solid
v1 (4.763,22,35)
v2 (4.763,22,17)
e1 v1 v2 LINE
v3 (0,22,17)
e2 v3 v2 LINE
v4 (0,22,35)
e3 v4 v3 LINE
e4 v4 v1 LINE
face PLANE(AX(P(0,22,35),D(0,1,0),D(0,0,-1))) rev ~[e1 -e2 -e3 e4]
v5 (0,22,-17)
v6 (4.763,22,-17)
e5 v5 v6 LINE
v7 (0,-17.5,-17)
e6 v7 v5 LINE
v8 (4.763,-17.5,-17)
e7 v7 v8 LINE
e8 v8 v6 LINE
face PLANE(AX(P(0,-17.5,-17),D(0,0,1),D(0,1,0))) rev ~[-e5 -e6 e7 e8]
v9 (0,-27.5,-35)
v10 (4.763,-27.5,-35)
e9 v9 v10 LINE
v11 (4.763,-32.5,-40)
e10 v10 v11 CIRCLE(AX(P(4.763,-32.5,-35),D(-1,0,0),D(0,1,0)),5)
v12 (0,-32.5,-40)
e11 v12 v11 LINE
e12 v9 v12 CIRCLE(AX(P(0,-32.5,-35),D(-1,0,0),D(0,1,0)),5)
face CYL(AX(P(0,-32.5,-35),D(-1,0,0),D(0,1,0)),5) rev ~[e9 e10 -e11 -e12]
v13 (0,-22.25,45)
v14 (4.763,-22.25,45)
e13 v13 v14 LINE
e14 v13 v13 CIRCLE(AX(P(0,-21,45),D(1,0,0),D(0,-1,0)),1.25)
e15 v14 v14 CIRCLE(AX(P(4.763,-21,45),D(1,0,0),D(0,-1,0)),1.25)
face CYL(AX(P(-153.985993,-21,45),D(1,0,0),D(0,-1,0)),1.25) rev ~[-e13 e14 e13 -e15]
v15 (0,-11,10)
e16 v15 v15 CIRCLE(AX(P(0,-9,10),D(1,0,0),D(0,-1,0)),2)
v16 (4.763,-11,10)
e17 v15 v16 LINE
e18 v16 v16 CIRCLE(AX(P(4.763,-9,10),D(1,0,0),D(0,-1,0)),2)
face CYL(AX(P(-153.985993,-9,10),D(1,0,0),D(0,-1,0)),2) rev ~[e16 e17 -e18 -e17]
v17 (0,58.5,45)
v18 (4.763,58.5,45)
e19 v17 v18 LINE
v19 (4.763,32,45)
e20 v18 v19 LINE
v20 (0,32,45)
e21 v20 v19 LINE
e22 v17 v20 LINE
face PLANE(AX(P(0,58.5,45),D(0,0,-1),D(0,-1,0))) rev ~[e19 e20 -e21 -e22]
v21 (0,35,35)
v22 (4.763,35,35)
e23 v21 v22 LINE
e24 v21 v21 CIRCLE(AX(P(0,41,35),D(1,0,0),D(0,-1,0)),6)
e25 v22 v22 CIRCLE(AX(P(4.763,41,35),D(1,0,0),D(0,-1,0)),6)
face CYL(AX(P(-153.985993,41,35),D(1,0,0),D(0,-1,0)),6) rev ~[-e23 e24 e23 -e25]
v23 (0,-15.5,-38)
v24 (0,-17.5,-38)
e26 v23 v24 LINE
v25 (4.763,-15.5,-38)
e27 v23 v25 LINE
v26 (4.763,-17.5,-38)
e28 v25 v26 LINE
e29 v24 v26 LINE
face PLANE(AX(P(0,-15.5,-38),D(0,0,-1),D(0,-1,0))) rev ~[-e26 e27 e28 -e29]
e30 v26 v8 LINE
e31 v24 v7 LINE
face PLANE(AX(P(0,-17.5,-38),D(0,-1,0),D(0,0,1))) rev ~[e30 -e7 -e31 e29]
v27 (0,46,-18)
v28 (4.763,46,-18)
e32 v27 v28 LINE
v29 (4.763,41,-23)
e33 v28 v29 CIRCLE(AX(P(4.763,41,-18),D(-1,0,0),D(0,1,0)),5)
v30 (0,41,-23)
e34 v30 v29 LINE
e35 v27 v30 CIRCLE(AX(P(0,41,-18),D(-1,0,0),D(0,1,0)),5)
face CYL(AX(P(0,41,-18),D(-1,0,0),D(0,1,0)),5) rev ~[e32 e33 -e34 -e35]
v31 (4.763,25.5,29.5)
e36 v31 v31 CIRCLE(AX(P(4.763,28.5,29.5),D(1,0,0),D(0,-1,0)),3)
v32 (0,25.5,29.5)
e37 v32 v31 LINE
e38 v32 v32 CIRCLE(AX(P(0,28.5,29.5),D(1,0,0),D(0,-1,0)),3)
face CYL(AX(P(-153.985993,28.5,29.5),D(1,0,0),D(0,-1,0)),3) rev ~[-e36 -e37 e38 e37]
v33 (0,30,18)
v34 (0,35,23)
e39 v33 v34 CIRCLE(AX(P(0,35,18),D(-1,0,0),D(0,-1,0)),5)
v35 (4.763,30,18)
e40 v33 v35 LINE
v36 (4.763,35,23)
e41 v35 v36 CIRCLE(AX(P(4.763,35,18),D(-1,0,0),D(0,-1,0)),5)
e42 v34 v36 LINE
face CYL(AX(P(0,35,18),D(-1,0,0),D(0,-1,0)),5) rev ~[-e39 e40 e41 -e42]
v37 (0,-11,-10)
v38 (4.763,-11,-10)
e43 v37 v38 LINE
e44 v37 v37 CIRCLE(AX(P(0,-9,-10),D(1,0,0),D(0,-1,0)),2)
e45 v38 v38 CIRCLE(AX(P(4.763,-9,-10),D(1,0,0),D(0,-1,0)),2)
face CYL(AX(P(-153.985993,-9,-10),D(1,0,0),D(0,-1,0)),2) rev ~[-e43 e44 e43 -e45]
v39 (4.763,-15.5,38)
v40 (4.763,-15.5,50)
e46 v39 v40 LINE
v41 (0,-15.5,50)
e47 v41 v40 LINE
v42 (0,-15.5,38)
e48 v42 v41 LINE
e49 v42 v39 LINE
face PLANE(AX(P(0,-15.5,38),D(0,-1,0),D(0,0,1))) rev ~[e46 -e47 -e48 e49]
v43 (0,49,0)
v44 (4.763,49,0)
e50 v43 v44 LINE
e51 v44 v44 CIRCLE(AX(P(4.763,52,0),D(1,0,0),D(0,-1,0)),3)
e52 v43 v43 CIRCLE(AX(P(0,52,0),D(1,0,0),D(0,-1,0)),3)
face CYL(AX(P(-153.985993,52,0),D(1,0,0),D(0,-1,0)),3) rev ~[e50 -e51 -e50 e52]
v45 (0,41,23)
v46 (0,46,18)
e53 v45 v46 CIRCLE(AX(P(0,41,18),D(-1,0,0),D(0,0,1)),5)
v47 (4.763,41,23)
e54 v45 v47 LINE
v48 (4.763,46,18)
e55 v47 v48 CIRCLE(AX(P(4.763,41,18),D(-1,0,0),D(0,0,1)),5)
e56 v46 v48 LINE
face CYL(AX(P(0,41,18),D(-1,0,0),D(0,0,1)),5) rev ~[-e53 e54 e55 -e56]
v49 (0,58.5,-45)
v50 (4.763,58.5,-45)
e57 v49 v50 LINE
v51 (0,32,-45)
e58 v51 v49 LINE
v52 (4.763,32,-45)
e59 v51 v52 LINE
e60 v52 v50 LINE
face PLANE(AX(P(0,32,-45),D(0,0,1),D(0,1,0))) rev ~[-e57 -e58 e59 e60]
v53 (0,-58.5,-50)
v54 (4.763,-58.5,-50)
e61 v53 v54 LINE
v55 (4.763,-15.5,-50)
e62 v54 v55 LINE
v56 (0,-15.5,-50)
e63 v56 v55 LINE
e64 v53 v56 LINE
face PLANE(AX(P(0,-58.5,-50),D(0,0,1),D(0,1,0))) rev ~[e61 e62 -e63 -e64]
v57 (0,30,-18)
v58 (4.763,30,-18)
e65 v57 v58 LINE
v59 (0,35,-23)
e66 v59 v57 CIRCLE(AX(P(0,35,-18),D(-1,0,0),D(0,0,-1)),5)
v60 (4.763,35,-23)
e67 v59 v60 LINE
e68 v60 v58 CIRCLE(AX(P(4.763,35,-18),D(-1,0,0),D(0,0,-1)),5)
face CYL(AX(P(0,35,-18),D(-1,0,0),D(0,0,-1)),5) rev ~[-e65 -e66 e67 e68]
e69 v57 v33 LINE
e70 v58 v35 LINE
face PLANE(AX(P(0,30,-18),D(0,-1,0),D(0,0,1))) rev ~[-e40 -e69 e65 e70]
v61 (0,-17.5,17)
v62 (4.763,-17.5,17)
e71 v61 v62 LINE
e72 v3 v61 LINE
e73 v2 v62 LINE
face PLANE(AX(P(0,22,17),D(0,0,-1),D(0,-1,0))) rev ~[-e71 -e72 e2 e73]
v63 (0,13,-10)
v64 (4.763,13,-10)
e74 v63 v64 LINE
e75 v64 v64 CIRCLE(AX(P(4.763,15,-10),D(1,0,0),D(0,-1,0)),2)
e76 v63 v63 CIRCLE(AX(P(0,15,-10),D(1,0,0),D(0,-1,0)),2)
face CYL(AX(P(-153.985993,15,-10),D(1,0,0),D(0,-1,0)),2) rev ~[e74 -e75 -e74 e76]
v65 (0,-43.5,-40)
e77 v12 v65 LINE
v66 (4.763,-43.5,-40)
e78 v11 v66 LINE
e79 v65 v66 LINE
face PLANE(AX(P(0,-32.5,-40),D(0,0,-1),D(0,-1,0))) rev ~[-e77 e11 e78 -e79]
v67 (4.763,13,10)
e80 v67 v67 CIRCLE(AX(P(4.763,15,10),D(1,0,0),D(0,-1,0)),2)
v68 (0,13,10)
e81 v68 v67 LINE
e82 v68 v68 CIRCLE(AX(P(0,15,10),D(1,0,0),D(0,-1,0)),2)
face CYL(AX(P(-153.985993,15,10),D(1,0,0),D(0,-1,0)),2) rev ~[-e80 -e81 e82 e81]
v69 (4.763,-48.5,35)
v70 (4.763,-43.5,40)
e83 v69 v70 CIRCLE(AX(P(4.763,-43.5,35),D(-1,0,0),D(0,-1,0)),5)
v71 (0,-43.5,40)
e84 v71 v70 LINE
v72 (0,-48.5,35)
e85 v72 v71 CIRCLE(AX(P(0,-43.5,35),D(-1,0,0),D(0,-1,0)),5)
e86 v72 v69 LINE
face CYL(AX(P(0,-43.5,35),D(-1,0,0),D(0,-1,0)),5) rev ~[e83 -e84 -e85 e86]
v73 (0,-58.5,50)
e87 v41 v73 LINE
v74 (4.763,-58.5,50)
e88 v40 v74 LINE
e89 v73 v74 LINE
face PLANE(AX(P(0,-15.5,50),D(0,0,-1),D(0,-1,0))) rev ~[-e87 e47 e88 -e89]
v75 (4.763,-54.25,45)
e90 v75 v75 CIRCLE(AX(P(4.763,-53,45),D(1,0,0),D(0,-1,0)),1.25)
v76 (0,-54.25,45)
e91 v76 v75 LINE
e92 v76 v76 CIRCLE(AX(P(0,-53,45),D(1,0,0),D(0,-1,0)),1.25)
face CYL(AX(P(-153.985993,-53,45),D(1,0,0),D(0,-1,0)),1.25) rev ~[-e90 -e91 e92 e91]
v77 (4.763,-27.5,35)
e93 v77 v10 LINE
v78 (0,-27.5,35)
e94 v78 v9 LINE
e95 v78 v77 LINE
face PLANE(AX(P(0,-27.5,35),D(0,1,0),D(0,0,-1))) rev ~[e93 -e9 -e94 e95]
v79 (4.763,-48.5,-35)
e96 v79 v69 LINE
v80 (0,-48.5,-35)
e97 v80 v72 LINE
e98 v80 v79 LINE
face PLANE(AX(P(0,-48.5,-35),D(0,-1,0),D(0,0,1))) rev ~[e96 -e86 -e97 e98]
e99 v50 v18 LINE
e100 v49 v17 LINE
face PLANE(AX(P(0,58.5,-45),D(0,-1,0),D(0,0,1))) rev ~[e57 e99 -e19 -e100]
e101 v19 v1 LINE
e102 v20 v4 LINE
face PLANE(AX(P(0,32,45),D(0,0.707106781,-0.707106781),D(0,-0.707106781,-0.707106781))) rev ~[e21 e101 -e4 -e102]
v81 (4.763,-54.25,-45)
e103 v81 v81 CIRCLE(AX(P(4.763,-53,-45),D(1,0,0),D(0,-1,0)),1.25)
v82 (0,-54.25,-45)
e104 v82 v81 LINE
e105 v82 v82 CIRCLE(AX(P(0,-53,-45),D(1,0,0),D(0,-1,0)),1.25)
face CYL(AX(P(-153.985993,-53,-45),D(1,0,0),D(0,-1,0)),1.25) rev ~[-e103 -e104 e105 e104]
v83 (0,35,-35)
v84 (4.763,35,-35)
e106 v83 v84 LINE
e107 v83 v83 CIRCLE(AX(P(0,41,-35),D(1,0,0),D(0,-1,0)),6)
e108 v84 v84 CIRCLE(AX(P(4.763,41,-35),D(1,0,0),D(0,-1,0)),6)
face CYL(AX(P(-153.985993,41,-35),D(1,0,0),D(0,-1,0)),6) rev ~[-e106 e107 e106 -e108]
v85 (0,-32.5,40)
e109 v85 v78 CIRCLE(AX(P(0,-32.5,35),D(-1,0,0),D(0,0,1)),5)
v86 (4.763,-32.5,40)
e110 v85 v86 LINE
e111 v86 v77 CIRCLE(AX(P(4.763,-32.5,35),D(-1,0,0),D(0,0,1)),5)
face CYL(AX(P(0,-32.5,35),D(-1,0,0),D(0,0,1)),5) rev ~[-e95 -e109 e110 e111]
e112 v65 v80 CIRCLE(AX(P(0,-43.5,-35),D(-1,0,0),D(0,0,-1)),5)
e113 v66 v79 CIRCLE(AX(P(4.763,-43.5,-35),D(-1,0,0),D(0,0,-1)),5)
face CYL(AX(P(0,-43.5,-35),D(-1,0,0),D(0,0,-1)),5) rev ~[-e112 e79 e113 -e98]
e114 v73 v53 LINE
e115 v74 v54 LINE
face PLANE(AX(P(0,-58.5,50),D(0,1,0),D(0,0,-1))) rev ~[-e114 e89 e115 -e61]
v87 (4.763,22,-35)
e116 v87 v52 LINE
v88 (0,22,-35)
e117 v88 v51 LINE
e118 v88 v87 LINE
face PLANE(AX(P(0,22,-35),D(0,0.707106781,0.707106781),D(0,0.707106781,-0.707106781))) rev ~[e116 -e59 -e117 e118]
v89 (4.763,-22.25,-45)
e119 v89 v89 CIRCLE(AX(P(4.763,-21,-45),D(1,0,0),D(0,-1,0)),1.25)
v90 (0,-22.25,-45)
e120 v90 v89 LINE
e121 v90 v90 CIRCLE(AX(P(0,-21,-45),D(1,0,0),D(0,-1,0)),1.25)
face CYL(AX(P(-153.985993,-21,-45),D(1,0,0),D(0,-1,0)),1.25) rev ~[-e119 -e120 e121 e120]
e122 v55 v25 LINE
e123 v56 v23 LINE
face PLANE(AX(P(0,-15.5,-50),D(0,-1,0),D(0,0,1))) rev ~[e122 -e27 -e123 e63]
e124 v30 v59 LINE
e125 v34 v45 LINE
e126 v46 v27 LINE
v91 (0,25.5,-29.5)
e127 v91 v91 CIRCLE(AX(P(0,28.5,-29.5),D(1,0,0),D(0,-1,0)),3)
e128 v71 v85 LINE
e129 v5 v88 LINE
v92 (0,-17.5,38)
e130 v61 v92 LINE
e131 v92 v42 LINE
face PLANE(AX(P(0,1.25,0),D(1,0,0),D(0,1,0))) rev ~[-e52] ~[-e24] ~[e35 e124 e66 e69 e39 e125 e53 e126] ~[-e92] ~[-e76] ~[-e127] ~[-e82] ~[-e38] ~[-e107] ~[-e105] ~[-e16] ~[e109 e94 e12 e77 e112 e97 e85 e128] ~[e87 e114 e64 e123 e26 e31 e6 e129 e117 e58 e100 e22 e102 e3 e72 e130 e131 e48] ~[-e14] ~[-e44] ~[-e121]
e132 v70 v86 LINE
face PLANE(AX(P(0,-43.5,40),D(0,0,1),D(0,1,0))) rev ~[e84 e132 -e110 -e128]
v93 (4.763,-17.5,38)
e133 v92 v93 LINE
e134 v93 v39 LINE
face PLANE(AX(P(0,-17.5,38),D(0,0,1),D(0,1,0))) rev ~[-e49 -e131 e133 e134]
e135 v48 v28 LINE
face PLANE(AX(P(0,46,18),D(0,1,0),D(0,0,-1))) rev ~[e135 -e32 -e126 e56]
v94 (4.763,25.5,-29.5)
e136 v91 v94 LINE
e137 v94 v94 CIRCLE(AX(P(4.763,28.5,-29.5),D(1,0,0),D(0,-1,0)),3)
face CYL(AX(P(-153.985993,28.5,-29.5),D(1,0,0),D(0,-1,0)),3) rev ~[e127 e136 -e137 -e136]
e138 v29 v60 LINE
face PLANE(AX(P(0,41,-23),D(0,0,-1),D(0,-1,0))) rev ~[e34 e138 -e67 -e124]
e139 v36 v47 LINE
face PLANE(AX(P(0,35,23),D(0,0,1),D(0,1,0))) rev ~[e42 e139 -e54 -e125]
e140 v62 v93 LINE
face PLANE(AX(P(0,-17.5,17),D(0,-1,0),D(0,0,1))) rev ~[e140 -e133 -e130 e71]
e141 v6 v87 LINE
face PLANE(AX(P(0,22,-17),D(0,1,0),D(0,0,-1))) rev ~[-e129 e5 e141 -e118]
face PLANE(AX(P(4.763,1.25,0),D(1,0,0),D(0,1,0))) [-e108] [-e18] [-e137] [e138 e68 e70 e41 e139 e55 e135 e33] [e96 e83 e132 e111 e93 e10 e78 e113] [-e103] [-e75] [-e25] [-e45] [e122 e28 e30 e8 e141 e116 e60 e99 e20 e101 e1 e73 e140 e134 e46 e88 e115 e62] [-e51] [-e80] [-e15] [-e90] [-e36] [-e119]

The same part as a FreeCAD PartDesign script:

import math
import FreeCAD as App
import Part
import Sketcher
from FreeCAD import Vector
Q = App.Units.Quantity

doc = App.newDocument("Part")
body = doc.addObject("PartDesign::Body", "Body")

sketch1 = body.newObject("Sketcher::SketchObject", "Sketch")
sketch1.AttachmentSupport = (doc.getObject("YZ_Plane"), [""])
sketch1.MapMode = "FlatFace"
sketch1.addGeometry([
    Part.LineSegment(Vector(22, 17, 0), Vector(-17.5, 17, 0)),
    Part.LineSegment(Vector(-17.5, 17, 0), Vector(-17.5, 38, 0)),
    Part.LineSegment(Vector(-17.5, 38, 0), Vector(-15.5, 38, 0)),
    Part.LineSegment(Vector(-15.5, 38, 0), Vector(-15.5, 50, 0)),
    Part.LineSegment(Vector(-15.5, 50, 0), Vector(-58.5, 50, 0)),
    Part.LineSegment(Vector(-58.5, 50, 0), Vector(-58.5, -50, 0)),
    Part.LineSegment(Vector(-58.5, -50, 0), Vector(-15.5, -50, 0)),
    Part.LineSegment(Vector(-15.5, -50, 0), Vector(-15.5, -38, 0)),
    Part.LineSegment(Vector(-15.5, -38, 0), Vector(-17.5, -38, 0)),
    Part.LineSegment(Vector(-17.5, -38, 0), Vector(-17.5, -17, 0)),
    Part.LineSegment(Vector(-17.5, -17, 0), Vector(22, -17, 0)),
    Part.LineSegment(Vector(22, -17, 0), Vector(22, -35, 0)),
    Part.LineSegment(Vector(22, -35, 0), Vector(32, -45, 0)),
    Part.LineSegment(Vector(32, -45, 0), Vector(58.5, -45, 0)),
    Part.LineSegment(Vector(58.5, -45, 0), Vector(58.5, 45, 0)),
    Part.LineSegment(Vector(58.5, 45, 0), Vector(32, 45, 0)),
    Part.LineSegment(Vector(32, 45, 0), Vector(22, 35, 0)),
    Part.LineSegment(Vector(22, 35, 0), Vector(22, 17, 0)),
    Part.ArcOfCircle(Part.Circle(Vector(-43.5, 35, 0), Vector(0, 0, 1), 5), math.radians(90), math.radians(180)),
    Part.LineSegment(Vector(-43.5, 40, 0), Vector(-32.5, 40, 0)),
    Part.ArcOfCircle(Part.Circle(Vector(-32.5, 35, 0), Vector(0, 0, 1), 5), math.radians(0), math.radians(90)),
    Part.LineSegment(Vector(-27.5, 35, 0), Vector(-27.5, -35, 0)),
    Part.ArcOfCircle(Part.Circle(Vector(-32.5, -35, 0), Vector(0, 0, 1), 5), math.radians(-90), math.radians(0)),
    Part.LineSegment(Vector(-32.5, -40, 0), Vector(-43.5, -40, 0)),
    Part.ArcOfCircle(Part.Circle(Vector(-43.5, -35, 0), Vector(0, 0, 1), 5), math.radians(180), math.radians(270)),
    Part.LineSegment(Vector(-48.5, -35, 0), Vector(-48.5, 35, 0)),
    Part.ArcOfCircle(Part.Circle(Vector(35, 18, 0), Vector(0, 0, 1), 5), math.radians(90), math.radians(180)),
    Part.LineSegment(Vector(35, 23, 0), Vector(41, 23, 0)),
    Part.ArcOfCircle(Part.Circle(Vector(41, 18, 0), Vector(0, 0, 1), 5), math.radians(0), math.radians(90)),
    Part.LineSegment(Vector(46, 18, 0), Vector(46, -18, 0)),
    Part.ArcOfCircle(Part.Circle(Vector(41, -18, 0), Vector(0, 0, 1), 5), math.radians(-90), math.radians(0)),
    Part.LineSegment(Vector(41, -23, 0), Vector(35, -23, 0)),
    Part.ArcOfCircle(Part.Circle(Vector(35, -18, 0), Vector(0, 0, 1), 5), math.radians(180), math.radians(270)),
    Part.LineSegment(Vector(30, -18, 0), Vector(30, 18, 0)),
], False)
sketch1.addConstraint([
    Sketcher.Constraint("Coincident", 0, 2, 1, 1),
    Sketcher.Constraint("Coincident", 1, 2, 2, 1),
    Sketcher.Constraint("Coincident", 2, 2, 3, 1),
    Sketcher.Constraint("Coincident", 3, 2, 4, 1),
    Sketcher.Constraint("Coincident", 4, 2, 5, 1),
    Sketcher.Constraint("Coincident", 5, 2, 6, 1),
    Sketcher.Constraint("Coincident", 6, 2, 7, 1),
    Sketcher.Constraint("Coincident", 7, 2, 8, 1),
    Sketcher.Constraint("Coincident", 8, 2, 9, 1),
    Sketcher.Constraint("Coincident", 9, 2, 10, 1),
    Sketcher.Constraint("Coincident", 10, 2, 11, 1),
    Sketcher.Constraint("Coincident", 11, 2, 12, 1),
    Sketcher.Constraint("Coincident", 12, 2, 13, 1),
    Sketcher.Constraint("Coincident", 13, 2, 14, 1),
    Sketcher.Constraint("Coincident", 14, 2, 15, 1),
    Sketcher.Constraint("Coincident", 15, 2, 16, 1),
    Sketcher.Constraint("Coincident", 16, 2, 17, 1),
    Sketcher.Constraint("Coincident", 17, 2, 0, 1),
    Sketcher.Constraint("Tangent", 18, 1, 19, 1),
    Sketcher.Constraint("Tangent", 19, 2, 20, 2),
    Sketcher.Constraint("Tangent", 20, 1, 21, 1),
    Sketcher.Constraint("Tangent", 21, 2, 22, 2),
    Sketcher.Constraint("Tangent", 22, 1, 23, 1),
    Sketcher.Constraint("Tangent", 23, 2, 24, 2),
    Sketcher.Constraint("Tangent", 24, 1, 25, 1),
    Sketcher.Constraint("Tangent", 25, 2, 18, 2),
    Sketcher.Constraint("Tangent", 26, 1, 27, 1),
    Sketcher.Constraint("Tangent", 27, 2, 28, 2),
    Sketcher.Constraint("Tangent", 28, 1, 29, 1),
    Sketcher.Constraint("Tangent", 29, 2, 30, 2),
    Sketcher.Constraint("Tangent", 30, 1, 31, 1),
    Sketcher.Constraint("Tangent", 31, 2, 32, 2),
    Sketcher.Constraint("Tangent", 32, 1, 33, 1),
    Sketcher.Constraint("Tangent", 33, 2, 26, 2),
    Sketcher.Constraint("Horizontal", 0),
    Sketcher.Constraint("Vertical", 1),
    Sketcher.Constraint("Horizontal", 2),
    Sketcher.Constraint("Vertical", 3),
    Sketcher.Constraint("Horizontal", 4),
    Sketcher.Constraint("Vertical", 5),
    Sketcher.Constraint("Horizontal", 6),
    Sketcher.Constraint("Vertical", 7),
    Sketcher.Constraint("Horizontal", 8),
    Sketcher.Constraint("Vertical", 9),
    Sketcher.Constraint("Horizontal", 10),
    Sketcher.Constraint("Vertical", 11),
    Sketcher.Constraint("Horizontal", 13),
    Sketcher.Constraint("Vertical", 14),
    Sketcher.Constraint("Horizontal", 15),
    Sketcher.Constraint("Vertical", 17),
    Sketcher.Constraint("Horizontal", 19),
    Sketcher.Constraint("Vertical", 21),
    Sketcher.Constraint("Horizontal", 23),
    Sketcher.Constraint("Vertical", 25),
    Sketcher.Constraint("Horizontal", 27),
    Sketcher.Constraint("Vertical", 29),
    Sketcher.Constraint("Horizontal", 31),
    Sketcher.Constraint("Vertical", 33),
    Sketcher.Constraint("Equal", 18, 20),
    Sketcher.Constraint("Equal", 20, 22),
    Sketcher.Constraint("Equal", 22, 24),
    Sketcher.Constraint("Equal", 24, 26),
    Sketcher.Constraint("Equal", 26, 28),
    Sketcher.Constraint("Equal", 28, 30),
    Sketcher.Constraint("Equal", 30, 32),
    Sketcher.Constraint("Symmetric", 3, 2, 6, 2, -1),
    Sketcher.Constraint("Symmetric", 1, 2, 8, 2, -1),
    Sketcher.Constraint("Symmetric", 12, 2, 15, 2, -1),
    Sketcher.Constraint("Symmetric", 11, 2, 16, 2, -1),
    Sketcher.Constraint("Perpendicular", 12, 16),
    Sketcher.Constraint("Horizontal", 24, 3, 11, 2),
    Sketcher.Constraint("Horizontal", 20, 3, 16, 2),
    Sketcher.Constraint("Equal", 1, 9),
    Sketcher.Constraint("Radius", 18, Q("5 mm")),
    Sketcher.Constraint("DistanceX", 2, 1, 2, 2, Q("2 mm")),
    Sketcher.Constraint("DistanceX", 4, 2, 4, 1, Q("43 mm")),
    Sketcher.Constraint("DistanceX", 19, 1, 19, 2, Q("11 mm")),
    Sketcher.Constraint("DistanceX", 27, 1, 27, 2, Q("6 mm")),
    Sketcher.Constraint("DistanceY", 1, 1, 1, 2, Q("21 mm")),
    Sketcher.Constraint("DistanceY", 3, 1, 3, 2, Q("12 mm")),
    Sketcher.Constraint("DistanceY", 5, 2, 5, 1, Q("100 mm")),
    Sketcher.Constraint("DistanceY", 11, 2, 11, 1, Q("18 mm")),
    Sketcher.Constraint("DistanceY", 14, 1, 14, 2, Q("90 mm")),
    Sketcher.Constraint("DistanceY", 29, 2, 29, 1, Q("36 mm")),
    Sketcher.Constraint("DistanceX", 0, 2, 0, 1, Q("39.5 mm")),
    Sketcher.Constraint("DistanceX", 13, 1, 13, 2, Q("26.5 mm")),
    Sketcher.Constraint("DistanceX", -1, 1, 26, 3, Q("35 mm")),
    Sketcher.Constraint("DistanceY", -1, 1, 26, 3, Q("18 mm")),
    Sketcher.Constraint("DistanceX", -1, 1, 10, 2, Q("22 mm")),
    Sketcher.Constraint("DistanceX", 20, 3, 0, 2, Q("15 mm")),
])
pad1 = body.newObject("PartDesign::Pad", "Pad")
pad1.Profile = sketch1
pad1.Length = 4.763

sketch2 = body.newObject("Sketcher::SketchObject", "Sketch001")
sketch2.AttachmentSupport = (doc.getObject("YZ_Plane"), [""])
sketch2.MapMode = "FlatFace"
sketch2.addGeometry([
    Part.Circle(Vector(-53, 45, 0), Vector(0, 0, 1), 1.2),
    Part.Circle(Vector(-21, 45, 0), Vector(0, 0, 1), 1.2),
    Part.Circle(Vector(-21, -45, 0), Vector(0, 0, 1), 1.2),
    Part.Circle(Vector(-53, -45, 0), Vector(0, 0, 1), 1.2),
], False)
sketch2.addConstraint([
    Sketcher.Constraint("Equal", 0, 1),
    Sketcher.Constraint("Equal", 1, 2),
    Sketcher.Constraint("Equal", 2, 3),
    Sketcher.Constraint("Symmetric", 1, 3, 2, 3, -1),
    Sketcher.Constraint("Symmetric", 0, 3, 3, 3, -1),
    Sketcher.Constraint("Horizontal", 0, 3, 1, 3),
    Sketcher.Constraint("Diameter", 0, Q("2.5 mm")),
    Sketcher.Constraint("DistanceX", 0, 3, -1, 1, Q("53 mm")),
    Sketcher.Constraint("DistanceY", -1, 1, 0, 3, Q("45 mm")),
    Sketcher.Constraint("DistanceX", 1, 3, -1, 1, Q("21 mm")),
])
doc.recompute()
hole = body.newObject("PartDesign::Hole", "Hole")
hole.Profile = sketch2
hole.ThreadType = "None"
hole.Diameter = 2.5
hole.DepthType = "ThroughAll"
hole.Reversed = True

sketch3 = body.newObject("Sketcher::SketchObject", "Sketch002")
sketch3.AttachmentSupport = (doc.getObject("YZ_Plane"), [""])
sketch3.MapMode = "FlatFace"
sketch3.addGeometry([
    Part.Circle(Vector(-9, 10, 0), Vector(0, 0, 1), 2),
    Part.Circle(Vector(15, 10, 0), Vector(0, 0, 1), 2),
    Part.Circle(Vector(15, -10, 0), Vector(0, 0, 1), 2),
    Part.Circle(Vector(-9, -10, 0), Vector(0, 0, 1), 2),
], False)
sketch3.addConstraint([
    Sketcher.Constraint("Equal", 0, 1),
    Sketcher.Constraint("Equal", 1, 2),
    Sketcher.Constraint("Equal", 2, 3),
    Sketcher.Constraint("Symmetric", 1, 3, 2, 3, -1),
    Sketcher.Constraint("Symmetric", 0, 3, 3, 3, -1),
    Sketcher.Constraint("Horizontal", 0, 3, 1, 3),
    Sketcher.Constraint("Diameter", 0, Q("4 mm")),
    Sketcher.Constraint("DistanceX", 0, 3, -1, 1, Q("9 mm")),
    Sketcher.Constraint("DistanceY", -1, 1, 0, 3, Q("10 mm")),
    Sketcher.Constraint("DistanceX", -1, 1, 1, 3, Q("15 mm")),
])
doc.recompute()
hole2 = body.newObject("PartDesign::Hole", "Hole001")
hole2.Profile = sketch3
hole2.ThreadType = "None"
hole2.Diameter = 4
hole2.DepthType = "ThroughAll"
hole2.Reversed = True

sketch4 = body.newObject("Sketcher::SketchObject", "Sketch003")
sketch4.AttachmentSupport = (doc.getObject("YZ_Plane"), [""])
sketch4.MapMode = "FlatFace"
sketch4.addGeometry([
    Part.Circle(Vector(52, 0, 0), Vector(0, 0, 1), 3),
    Part.Circle(Vector(28.5, -29.5, 0), Vector(0, 0, 1), 3),
    Part.Circle(Vector(28.5, 29.5, 0), Vector(0, 0, 1), 3),
], False)
sketch4.addConstraint([
    Sketcher.Constraint("Equal", 0, 1),
    Sketcher.Constraint("Equal", 1, 2),
    Sketcher.Constraint("Symmetric", 1, 3, 2, 3, -1),
    Sketcher.Constraint("PointOnObject", 0, 3, -1),
    Sketcher.Constraint("Diameter", 0, Q("6 mm")),
    Sketcher.Constraint("DistanceX", -1, 1, 0, 3, Q("52 mm")),
    Sketcher.Constraint("DistanceY", 1, 3, 2, 3, Q("59 mm")),
    Sketcher.Constraint("DistanceX", -1, 1, 1, 3, Q("28.5 mm")),
])
doc.recompute()
hole3 = body.newObject("PartDesign::Hole", "Hole002")
hole3.Profile = sketch4
hole3.ThreadType = "None"
hole3.Diameter = 6
hole3.DepthType = "ThroughAll"
hole3.Reversed = True

sketch5 = body.newObject("Sketcher::SketchObject", "Sketch004")
sketch5.AttachmentSupport = (doc.getObject("YZ_Plane"), [""])
sketch5.MapMode = "FlatFace"
sketch5.addGeometry([
    Part.Circle(Vector(41, 35, 0), Vector(0, 0, 1), 6),
    Part.Circle(Vector(41, -35, 0), Vector(0, 0, 1), 6),
], False)
sketch5.addConstraint([
    Sketcher.Constraint("Equal", 0, 1),
    Sketcher.Constraint("Symmetric", 0, 3, 1, 3, -1),
    Sketcher.Constraint("Diameter", 0, Q("12 mm")),
    Sketcher.Constraint("DistanceX", -1, 1, 0, 3, Q("41 mm")),
    Sketcher.Constraint("DistanceY", -1, 1, 0, 3, Q("35 mm")),
])
doc.recompute()
hole4 = body.newObject("PartDesign::Hole", "Hole003")
hole4.Profile = sketch5
hole4.ThreadType = "None"
hole4.Diameter = 12
hole4.DepthType = "ThroughAll"
hole4.Reversed = True

doc.recompute()
